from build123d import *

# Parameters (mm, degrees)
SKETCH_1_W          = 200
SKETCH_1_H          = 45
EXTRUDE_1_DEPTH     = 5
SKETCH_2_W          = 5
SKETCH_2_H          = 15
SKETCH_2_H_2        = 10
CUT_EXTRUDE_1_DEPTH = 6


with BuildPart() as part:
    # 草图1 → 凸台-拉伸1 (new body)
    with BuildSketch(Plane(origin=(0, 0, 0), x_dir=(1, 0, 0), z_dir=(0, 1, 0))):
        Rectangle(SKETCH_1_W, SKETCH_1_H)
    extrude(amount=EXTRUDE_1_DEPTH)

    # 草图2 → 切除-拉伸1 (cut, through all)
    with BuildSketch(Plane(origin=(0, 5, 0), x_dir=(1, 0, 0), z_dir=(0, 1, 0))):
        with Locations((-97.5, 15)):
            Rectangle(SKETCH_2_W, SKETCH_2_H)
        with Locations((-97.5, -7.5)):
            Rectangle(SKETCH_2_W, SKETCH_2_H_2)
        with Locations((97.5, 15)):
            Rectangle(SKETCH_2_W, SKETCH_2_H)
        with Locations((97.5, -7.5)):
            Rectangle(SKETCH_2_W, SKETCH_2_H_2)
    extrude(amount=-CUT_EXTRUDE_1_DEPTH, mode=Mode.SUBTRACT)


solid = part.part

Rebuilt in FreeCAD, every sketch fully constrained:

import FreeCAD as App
import Part
import Sketcher
from FreeCAD import Vector

doc = App.newDocument("Part")
body = doc.addObject("PartDesign::Body", "Body")

sketch1 = body.newObject("Sketcher::SketchObject", "Sketch")
sketch1.AttachmentSupport = (doc.getObject("XZ_Plane"), [""])
sketch1.MapMode = "FlatFace"
sketch1.addGeometry([
    Part.LineSegment(Vector(-100, -22, 0), Vector(-100, 22, 0)),
    Part.LineSegment(Vector(-100, 22, 0), Vector(100, 22, 0)),
    Part.LineSegment(Vector(100, 22, 0), Vector(100, -22, 0)),
    Part.LineSegment(Vector(100, -22, 0), Vector(-100, -22, 0)),
], False)
sketch1.addConstraint([
    Sketcher.Constraint("Coincident", 0, 2, 1, 1),
    Sketcher.Constraint("Coincident", 1, 2, 2, 1),
    Sketcher.Constraint("Coincident", 2, 2, 3, 1),
    Sketcher.Constraint("Coincident", 3, 2, 0, 1),
    Sketcher.Constraint("Vertical", 0),
    Sketcher.Constraint("Horizontal", 1),
    Sketcher.Constraint("Vertical", 2),
    Sketcher.Constraint("Horizontal", 3),
    Sketcher.Constraint("Symmetric", 0, 2, 2, 2, -1, 1),
    Sketcher.Constraint("DistanceX", 1, 1, 1, 2, 200.0),
    Sketcher.Constraint("DistanceY", 0, 1, 0, 2, 45.0),
])
pad1 = body.newObject("PartDesign::Pad", "Pad")
pad1.Profile = sketch1
pad1.Length = 5
pad1.Reversed = True

sketch2 = body.newObject("Sketcher::SketchObject", "Sketch001")
sketch2.AttachmentSupport = (doc.getObject("XZ_Plane"), [""])
sketch2.MapMode = "FlatFace"
sketch2.AttachmentOffset = App.Placement(Vector(0, 0, -5), App.Rotation())
sketch2.addGeometry([
    Part.LineSegment(Vector(-100, -22, 0), Vector(-100, -8, 0)),
    Part.LineSegment(Vector(-100, -8, 0), Vector(-95, -8, 0)),
    Part.LineSegment(Vector(-95, -8, 0), Vector(-95, -22, 0)),
    Part.LineSegment(Vector(-95, -22, 0), Vector(-100, -22, 0)),
    Part.LineSegment(Vector(-100, 2, 0), Vector(-100, 12, 0)),
    Part.LineSegment(Vector(-100, 12, 0), Vector(-95, 12, 0)),
    Part.LineSegment(Vector(-95, 12, 0), Vector(-95, 2, 0)),
    Part.LineSegment(Vector(-95, 2, 0), Vector(-100, 2, 0)),
    Part.LineSegment(Vector(95, -22, 0), Vector(95, -8, 0)),
    Part.LineSegment(Vector(95, -8, 0), Vector(100, -8, 0)),
    Part.LineSegment(Vector(100, -8, 0), Vector(100, -22, 0)),
    Part.LineSegment(Vector(100, -22, 0), Vector(95, -22, 0)),
    Part.LineSegment(Vector(95, 2, 0), Vector(95, 12, 0)),
    Part.LineSegment(Vector(95, 12, 0), Vector(100, 12, 0)),
    Part.LineSegment(Vector(100, 12, 0), Vector(100, 2, 0)),
    Part.LineSegment(Vector(100, 2, 0), Vector(95, 2, 0)),
], False)
sketch2.addConstraint([
    Sketcher.Constraint("Coincident", 0, 2, 1, 1),
    Sketcher.Constraint("Coincident", 1, 2, 2, 1),
    Sketcher.Constraint("Coincident", 2, 2, 3, 1),
    Sketcher.Constraint("Coincident", 3, 2, 0, 1),
    Sketcher.Constraint("Coincident", 4, 2, 5, 1),
    Sketcher.Constraint("Coincident", 5, 2, 6, 1),
    Sketcher.Constraint("Coincident", 6, 2, 7, 1),
    Sketcher.Constraint("Coincident", 7, 2, 4, 1),
    Sketcher.Constraint("Coincident", 8, 2, 9, 1),
    Sketcher.Constraint("Coincident", 9, 2, 10, 1),
    Sketcher.Constraint("Coincident", 10, 2, 11, 1),
    Sketcher.Constraint("Coincident", 11, 2, 8, 1),
    Sketcher.Constraint("Coincident", 12, 2, 13, 1),
    Sketcher.Constraint("Coincident", 13, 2, 14, 1),
    Sketcher.Constraint("Coincident", 14, 2, 15, 1),
    Sketcher.Constraint("Coincident", 15, 2, 12, 1),
    Sketcher.Constraint("Vertical", 0),
    Sketcher.Constraint("Horizontal", 1),
    Sketcher.Constraint("Vertical", 2),
    Sketcher.Constraint("Horizontal", 3),
    Sketcher.Constraint("Vertical", 4),
    Sketcher.Constraint("Horizontal", 5),
    Sketcher.Constraint("Vertical", 6),
    Sketcher.Constraint("Horizontal", 7),
    Sketcher.Constraint("Vertical", 8),
    Sketcher.Constraint("Horizontal", 9),
    Sketcher.Constraint("Vertical", 10),
    Sketcher.Constraint("Horizontal", 11),
    Sketcher.Constraint("Vertical", 12),
    Sketcher.Constraint("Horizontal", 13),
    Sketcher.Constraint("Vertical", 14),
    Sketcher.Constraint("Horizontal", 15),
    Sketcher.Constraint("Symmetric", 1, 2, 8, 2, -2),
    Sketcher.Constraint("Symmetric", 3, 2, 10, 2, -2),
    Sketcher.Constraint("Symmetric", 5, 2, 12, 2, -2),
    Sketcher.Constraint("Symmetric", 7, 2, 14, 2, -2),
    Sketcher.Constraint("Vertical", 3, 2, 4, 2),
    Sketcher.Constraint("Vertical", 2, 2, 5, 2),
    Sketcher.Constraint("DistanceX", 1, 1, 1, 2, 5.0),
    Sketcher.Constraint("DistanceY", 0, 1, 0, 2, 15.0),
    Sketcher.Constraint("DistanceY", 4, 1, 4, 2, 10.0),
    Sketcher.Constraint("DistanceX", 0, 2, -1, 1, 100.0),
    Sketcher.Constraint("DistanceY", 0, 2, 4, 2, 20.0),
    Sketcher.Constraint("DistanceY", 0, 2, -1, 1, 7.5),
])
pocket1 = body.newObject("PartDesign::Pocket", "Pocket")
pocket1.Profile = sketch2
pocket1.Type = "ThroughAll"
pocket1.Reversed = True

doc.recompute()
